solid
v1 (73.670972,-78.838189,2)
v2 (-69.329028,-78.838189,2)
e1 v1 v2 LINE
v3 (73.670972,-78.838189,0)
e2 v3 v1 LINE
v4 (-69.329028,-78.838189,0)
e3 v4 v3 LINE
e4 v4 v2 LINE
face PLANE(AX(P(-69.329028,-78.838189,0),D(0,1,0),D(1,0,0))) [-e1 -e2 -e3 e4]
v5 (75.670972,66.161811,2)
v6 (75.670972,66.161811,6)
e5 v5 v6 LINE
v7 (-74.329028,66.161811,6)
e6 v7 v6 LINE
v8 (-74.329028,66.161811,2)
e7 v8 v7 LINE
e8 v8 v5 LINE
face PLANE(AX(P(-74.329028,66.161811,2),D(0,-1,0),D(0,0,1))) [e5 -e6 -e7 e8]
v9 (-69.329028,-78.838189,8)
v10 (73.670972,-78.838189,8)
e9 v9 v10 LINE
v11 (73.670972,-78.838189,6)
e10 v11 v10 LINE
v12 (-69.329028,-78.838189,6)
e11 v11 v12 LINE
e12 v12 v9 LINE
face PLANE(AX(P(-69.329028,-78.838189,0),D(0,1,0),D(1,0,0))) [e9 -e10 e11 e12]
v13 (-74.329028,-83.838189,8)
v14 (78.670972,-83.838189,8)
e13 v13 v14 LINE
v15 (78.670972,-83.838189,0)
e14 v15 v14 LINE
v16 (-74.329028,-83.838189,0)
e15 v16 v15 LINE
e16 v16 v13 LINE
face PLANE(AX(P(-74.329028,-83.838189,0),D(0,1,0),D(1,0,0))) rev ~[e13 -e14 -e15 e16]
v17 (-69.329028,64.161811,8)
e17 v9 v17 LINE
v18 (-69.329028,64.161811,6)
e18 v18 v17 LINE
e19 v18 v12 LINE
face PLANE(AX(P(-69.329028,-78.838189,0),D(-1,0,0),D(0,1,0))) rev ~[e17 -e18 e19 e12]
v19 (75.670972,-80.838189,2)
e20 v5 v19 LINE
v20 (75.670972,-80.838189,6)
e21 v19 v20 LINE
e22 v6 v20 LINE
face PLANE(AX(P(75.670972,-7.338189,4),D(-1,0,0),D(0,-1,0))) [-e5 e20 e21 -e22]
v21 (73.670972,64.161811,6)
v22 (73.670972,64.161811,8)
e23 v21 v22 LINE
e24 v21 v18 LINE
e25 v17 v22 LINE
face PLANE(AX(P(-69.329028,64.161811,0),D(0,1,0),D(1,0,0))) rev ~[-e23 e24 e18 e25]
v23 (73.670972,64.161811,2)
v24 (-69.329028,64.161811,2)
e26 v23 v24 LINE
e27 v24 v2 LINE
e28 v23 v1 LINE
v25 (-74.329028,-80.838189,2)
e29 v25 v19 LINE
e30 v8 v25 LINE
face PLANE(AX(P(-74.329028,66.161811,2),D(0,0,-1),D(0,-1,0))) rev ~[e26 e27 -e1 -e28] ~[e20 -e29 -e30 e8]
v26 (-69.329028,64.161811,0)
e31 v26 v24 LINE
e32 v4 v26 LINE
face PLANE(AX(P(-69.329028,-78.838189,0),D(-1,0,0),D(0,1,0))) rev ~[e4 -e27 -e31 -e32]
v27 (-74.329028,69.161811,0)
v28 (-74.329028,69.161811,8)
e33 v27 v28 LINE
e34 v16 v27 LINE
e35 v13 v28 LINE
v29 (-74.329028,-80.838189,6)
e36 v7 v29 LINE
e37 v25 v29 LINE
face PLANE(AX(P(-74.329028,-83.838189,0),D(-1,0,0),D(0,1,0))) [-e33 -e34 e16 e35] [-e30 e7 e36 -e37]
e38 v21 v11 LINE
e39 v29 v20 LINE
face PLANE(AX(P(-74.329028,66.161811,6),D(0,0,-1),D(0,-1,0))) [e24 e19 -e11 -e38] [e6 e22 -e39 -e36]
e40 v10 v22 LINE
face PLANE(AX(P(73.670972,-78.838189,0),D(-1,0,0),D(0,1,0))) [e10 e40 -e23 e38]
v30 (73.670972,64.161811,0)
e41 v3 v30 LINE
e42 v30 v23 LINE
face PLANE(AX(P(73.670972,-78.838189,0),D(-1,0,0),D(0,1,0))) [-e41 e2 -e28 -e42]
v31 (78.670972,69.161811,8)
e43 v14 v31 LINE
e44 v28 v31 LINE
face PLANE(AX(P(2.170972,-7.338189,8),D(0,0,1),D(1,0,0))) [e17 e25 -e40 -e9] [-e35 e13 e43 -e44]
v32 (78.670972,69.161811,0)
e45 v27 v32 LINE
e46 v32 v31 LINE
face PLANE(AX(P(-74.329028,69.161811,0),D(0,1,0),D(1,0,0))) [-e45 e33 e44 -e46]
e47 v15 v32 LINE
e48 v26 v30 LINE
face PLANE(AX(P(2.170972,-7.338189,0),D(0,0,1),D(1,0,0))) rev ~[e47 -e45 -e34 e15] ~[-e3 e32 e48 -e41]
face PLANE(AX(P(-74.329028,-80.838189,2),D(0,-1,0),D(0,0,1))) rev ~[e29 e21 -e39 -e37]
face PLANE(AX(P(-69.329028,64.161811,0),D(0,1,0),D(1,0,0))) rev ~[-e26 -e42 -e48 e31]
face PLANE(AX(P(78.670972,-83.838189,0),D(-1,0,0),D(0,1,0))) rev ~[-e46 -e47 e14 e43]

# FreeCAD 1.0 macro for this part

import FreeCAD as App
import Part
import Sketcher
from FreeCAD import Vector
Q = App.Units.Quantity

doc = App.newDocument("Part")
params = doc.addObject("Spreadsheet::Sheet", "Params")
for row, (alias, value) in enumerate([
    ("sketch1_width", "153 mm"),
    ("sketch1_width2", "143 mm"),
    ("pad1_length", "8 mm"),
    ("sketch2_width", "147 mm"),
    ("sketch2_height", "4 mm"),
    ("pocket1_length", "150 mm"),
], start=1):
    params.set(f"A{row}", alias)
    params.set(f"B{row}", "=" + value)
    params.setAlias(f"B{row}", alias)

body = doc.addObject("PartDesign::Body", "Body")

sketch1 = body.newObject("Sketcher::SketchObject", "Sketch")
sketch1.AttachmentSupport = (doc.getObject("XY_Plane"), [""])
sketch1.MapMode = "FlatFace"
sketch1.addGeometry(Part.LineSegment(Vector(-74.329028, 69.161811, 0), Vector(-74.329028, -83.838189, 0)), False)
sketch1.addGeometry(Part.LineSegment(Vector(-74.329028, -83.838189, 0), Vector(78.670972, -83.838189, 0)), False)
sketch1.addGeometry(Part.LineSegment(Vector(78.670972, -83.838189, 0), Vector(78.670972, 69.161811, 0)), False)
sketch1.addGeometry(Part.LineSegment(Vector(78.670972, 69.161811, 0), Vector(-74.329028, 69.161811, 0)), False)
sketch1.addGeometry(Part.LineSegment(Vector(73.670972, -78.838189, 0), Vector(-69.329028, -78.838189, 0)), False)
sketch1.addGeometry(Part.LineSegment(Vector(-69.329028, -78.838189, 0), Vector(-69.329028, 64.161811, 0)), False)
sketch1.addGeometry(Part.LineSegment(Vector(-69.329028, 64.161811, 0), Vector(73.670972, 64.161811, 0)), False)
sketch1.addGeometry(Part.LineSegment(Vector(73.670972, 64.161811, 0), Vector(73.670972, -78.838189, 0)), False)
sketch1.addConstraint(Sketcher.Constraint("Coincident", 0, 2, 1, 1))
sketch1.addConstraint(Sketcher.Constraint("Coincident", 1, 2, 2, 1))
sketch1.addConstraint(Sketcher.Constraint("Coincident", 2, 2, 3, 1))
sketch1.addConstraint(Sketcher.Constraint("Coincident", 3, 2, 0, 1))
sketch1.addConstraint(Sketcher.Constraint("Coincident", 4, 2, 5, 1))
sketch1.addConstraint(Sketcher.Constraint("Coincident", 5, 2, 6, 1))
sketch1.addConstraint(Sketcher.Constraint("Coincident", 6, 2, 7, 1))
sketch1.addConstraint(Sketcher.Constraint("Coincident", 7, 2, 4, 1))
sketch1.addConstraint(Sketcher.Constraint("Vertical", 0))
sketch1.addConstraint(Sketcher.Constraint("Horizontal", 1))
sketch1.addConstraint(Sketcher.Constraint("Vertical", 2))
sketch1.addConstraint(Sketcher.Constraint("Horizontal", 3))
sketch1.addConstraint(Sketcher.Constraint("Horizontal", 4))
sketch1.addConstraint(Sketcher.Constraint("Vertical", 5))
sketch1.addConstraint(Sketcher.Constraint("Horizontal", 6))
sketch1.addConstraint(Sketcher.Constraint("Vertical", 7))
sketch1.addConstraint(Sketcher.Constraint("Equal", 3, 0))
sketch1.addConstraint(Sketcher.Constraint("Equal", 6, 5))
sketch1.addConstraint(Sketcher.Constraint("DistanceX", 1, 1, 1, 2, Q("153 mm")))
sketch1.addConstraint(Sketcher.Constraint("DistanceX", 4, 2, 4, 1, Q("143 mm")))
sketch1.addConstraint(Sketcher.Constraint("DistanceX", 0, 2, 4, 2, Q("5 mm")))
sketch1.addConstraint(Sketcher.Constraint("DistanceY", 0, 2, 4, 2, Q("5 mm")))
sketch1.addConstraint(Sketcher.Constraint("DistanceY", 0, 2, -1, 1, Q("83.838189 mm")))
sketch1.addConstraint(Sketcher.Constraint("DistanceX", 0, 2, -1, 1, Q("74.329028 mm")))
sketch1.setExpression("Constraints[18]", "Params.sketch1_width")
sketch1.setExpression("Constraints[19]", "Params.sketch1_width2")
pad1 = body.newObject("PartDesign::Pad", "Pad")
pad1.Profile = sketch1
pad1.setExpression("Length", "Params.pad1_length")

sketch2 = body.newObject("Sketcher::SketchObject", "Sketch001")
sketch2.AttachmentSupport = (doc.getObject("YZ_Plane"), [""])
sketch2.MapMode = "FlatFace"
sketch2.AttachmentOffset = App.Placement(Vector(0, 0, -74.329028), App.Rotation())
sketch2.addGeometry(Part.LineSegment(Vector(66.161811, 6, 0), Vector(66.161811, 2, 0)), False)
sketch2.addGeometry(Part.LineSegment(Vector(66.161811, 2, 0), Vector(-80.838189, 2, 0)), False)
sketch2.addGeometry(Part.LineSegment(Vector(-80.838189, 2, 0), Vector(-80.838189, 6, 0)), False)
sketch2.addGeometry(Part.LineSegment(Vector(-80.838189, 6, 0), Vector(66.161811, 6, 0)), False)
sketch2.addConstraint(Sketcher.Constraint("Coincident", 0, 2, 1, 1))
sketch2.addConstraint(Sketcher.Constraint("Coincident", 1, 2, 2, 1))
sketch2.addConstraint(Sketcher.Constraint("Coincident", 2, 2, 3, 1))
sketch2.addConstraint(Sketcher.Constraint("Coincident", 3, 2, 0, 1))
sketch2.addConstraint(Sketcher.Constraint("Vertical", 0))
sketch2.addConstraint(Sketcher.Constraint("Horizontal", 1))
sketch2.addConstraint(Sketcher.Constraint("Vertical", 2))
sketch2.addConstraint(Sketcher.Constraint("Horizontal", 3))
sketch2.addConstraint(Sketcher.Constraint("DistanceX", 1, 2, 1, 1, Q("147 mm")))
sketch2.addConstraint(Sketcher.Constraint("DistanceY", 0, 2, 0, 1, Q("4 mm")))
sketch2.addConstraint(Sketcher.Constraint("DistanceY", -1, 1, 0, 2, Q("2 mm")))
sketch2.addConstraint(Sketcher.Constraint("DistanceX", -1, 1, 0, 2, Q("66.161811 mm")))
sketch2.setExpression("Constraints[8]", "Params.sketch2_width")
sketch2.setExpression("Constraints[9]", "Params.sketch2_height")
pocket1 = body.newObject("PartDesign::Pocket", "Pocket")
pocket1.Profile = sketch2
pocket1.setExpression("Length", "Params.pocket1_length")
pocket1.Reversed = True

doc.recompute()
